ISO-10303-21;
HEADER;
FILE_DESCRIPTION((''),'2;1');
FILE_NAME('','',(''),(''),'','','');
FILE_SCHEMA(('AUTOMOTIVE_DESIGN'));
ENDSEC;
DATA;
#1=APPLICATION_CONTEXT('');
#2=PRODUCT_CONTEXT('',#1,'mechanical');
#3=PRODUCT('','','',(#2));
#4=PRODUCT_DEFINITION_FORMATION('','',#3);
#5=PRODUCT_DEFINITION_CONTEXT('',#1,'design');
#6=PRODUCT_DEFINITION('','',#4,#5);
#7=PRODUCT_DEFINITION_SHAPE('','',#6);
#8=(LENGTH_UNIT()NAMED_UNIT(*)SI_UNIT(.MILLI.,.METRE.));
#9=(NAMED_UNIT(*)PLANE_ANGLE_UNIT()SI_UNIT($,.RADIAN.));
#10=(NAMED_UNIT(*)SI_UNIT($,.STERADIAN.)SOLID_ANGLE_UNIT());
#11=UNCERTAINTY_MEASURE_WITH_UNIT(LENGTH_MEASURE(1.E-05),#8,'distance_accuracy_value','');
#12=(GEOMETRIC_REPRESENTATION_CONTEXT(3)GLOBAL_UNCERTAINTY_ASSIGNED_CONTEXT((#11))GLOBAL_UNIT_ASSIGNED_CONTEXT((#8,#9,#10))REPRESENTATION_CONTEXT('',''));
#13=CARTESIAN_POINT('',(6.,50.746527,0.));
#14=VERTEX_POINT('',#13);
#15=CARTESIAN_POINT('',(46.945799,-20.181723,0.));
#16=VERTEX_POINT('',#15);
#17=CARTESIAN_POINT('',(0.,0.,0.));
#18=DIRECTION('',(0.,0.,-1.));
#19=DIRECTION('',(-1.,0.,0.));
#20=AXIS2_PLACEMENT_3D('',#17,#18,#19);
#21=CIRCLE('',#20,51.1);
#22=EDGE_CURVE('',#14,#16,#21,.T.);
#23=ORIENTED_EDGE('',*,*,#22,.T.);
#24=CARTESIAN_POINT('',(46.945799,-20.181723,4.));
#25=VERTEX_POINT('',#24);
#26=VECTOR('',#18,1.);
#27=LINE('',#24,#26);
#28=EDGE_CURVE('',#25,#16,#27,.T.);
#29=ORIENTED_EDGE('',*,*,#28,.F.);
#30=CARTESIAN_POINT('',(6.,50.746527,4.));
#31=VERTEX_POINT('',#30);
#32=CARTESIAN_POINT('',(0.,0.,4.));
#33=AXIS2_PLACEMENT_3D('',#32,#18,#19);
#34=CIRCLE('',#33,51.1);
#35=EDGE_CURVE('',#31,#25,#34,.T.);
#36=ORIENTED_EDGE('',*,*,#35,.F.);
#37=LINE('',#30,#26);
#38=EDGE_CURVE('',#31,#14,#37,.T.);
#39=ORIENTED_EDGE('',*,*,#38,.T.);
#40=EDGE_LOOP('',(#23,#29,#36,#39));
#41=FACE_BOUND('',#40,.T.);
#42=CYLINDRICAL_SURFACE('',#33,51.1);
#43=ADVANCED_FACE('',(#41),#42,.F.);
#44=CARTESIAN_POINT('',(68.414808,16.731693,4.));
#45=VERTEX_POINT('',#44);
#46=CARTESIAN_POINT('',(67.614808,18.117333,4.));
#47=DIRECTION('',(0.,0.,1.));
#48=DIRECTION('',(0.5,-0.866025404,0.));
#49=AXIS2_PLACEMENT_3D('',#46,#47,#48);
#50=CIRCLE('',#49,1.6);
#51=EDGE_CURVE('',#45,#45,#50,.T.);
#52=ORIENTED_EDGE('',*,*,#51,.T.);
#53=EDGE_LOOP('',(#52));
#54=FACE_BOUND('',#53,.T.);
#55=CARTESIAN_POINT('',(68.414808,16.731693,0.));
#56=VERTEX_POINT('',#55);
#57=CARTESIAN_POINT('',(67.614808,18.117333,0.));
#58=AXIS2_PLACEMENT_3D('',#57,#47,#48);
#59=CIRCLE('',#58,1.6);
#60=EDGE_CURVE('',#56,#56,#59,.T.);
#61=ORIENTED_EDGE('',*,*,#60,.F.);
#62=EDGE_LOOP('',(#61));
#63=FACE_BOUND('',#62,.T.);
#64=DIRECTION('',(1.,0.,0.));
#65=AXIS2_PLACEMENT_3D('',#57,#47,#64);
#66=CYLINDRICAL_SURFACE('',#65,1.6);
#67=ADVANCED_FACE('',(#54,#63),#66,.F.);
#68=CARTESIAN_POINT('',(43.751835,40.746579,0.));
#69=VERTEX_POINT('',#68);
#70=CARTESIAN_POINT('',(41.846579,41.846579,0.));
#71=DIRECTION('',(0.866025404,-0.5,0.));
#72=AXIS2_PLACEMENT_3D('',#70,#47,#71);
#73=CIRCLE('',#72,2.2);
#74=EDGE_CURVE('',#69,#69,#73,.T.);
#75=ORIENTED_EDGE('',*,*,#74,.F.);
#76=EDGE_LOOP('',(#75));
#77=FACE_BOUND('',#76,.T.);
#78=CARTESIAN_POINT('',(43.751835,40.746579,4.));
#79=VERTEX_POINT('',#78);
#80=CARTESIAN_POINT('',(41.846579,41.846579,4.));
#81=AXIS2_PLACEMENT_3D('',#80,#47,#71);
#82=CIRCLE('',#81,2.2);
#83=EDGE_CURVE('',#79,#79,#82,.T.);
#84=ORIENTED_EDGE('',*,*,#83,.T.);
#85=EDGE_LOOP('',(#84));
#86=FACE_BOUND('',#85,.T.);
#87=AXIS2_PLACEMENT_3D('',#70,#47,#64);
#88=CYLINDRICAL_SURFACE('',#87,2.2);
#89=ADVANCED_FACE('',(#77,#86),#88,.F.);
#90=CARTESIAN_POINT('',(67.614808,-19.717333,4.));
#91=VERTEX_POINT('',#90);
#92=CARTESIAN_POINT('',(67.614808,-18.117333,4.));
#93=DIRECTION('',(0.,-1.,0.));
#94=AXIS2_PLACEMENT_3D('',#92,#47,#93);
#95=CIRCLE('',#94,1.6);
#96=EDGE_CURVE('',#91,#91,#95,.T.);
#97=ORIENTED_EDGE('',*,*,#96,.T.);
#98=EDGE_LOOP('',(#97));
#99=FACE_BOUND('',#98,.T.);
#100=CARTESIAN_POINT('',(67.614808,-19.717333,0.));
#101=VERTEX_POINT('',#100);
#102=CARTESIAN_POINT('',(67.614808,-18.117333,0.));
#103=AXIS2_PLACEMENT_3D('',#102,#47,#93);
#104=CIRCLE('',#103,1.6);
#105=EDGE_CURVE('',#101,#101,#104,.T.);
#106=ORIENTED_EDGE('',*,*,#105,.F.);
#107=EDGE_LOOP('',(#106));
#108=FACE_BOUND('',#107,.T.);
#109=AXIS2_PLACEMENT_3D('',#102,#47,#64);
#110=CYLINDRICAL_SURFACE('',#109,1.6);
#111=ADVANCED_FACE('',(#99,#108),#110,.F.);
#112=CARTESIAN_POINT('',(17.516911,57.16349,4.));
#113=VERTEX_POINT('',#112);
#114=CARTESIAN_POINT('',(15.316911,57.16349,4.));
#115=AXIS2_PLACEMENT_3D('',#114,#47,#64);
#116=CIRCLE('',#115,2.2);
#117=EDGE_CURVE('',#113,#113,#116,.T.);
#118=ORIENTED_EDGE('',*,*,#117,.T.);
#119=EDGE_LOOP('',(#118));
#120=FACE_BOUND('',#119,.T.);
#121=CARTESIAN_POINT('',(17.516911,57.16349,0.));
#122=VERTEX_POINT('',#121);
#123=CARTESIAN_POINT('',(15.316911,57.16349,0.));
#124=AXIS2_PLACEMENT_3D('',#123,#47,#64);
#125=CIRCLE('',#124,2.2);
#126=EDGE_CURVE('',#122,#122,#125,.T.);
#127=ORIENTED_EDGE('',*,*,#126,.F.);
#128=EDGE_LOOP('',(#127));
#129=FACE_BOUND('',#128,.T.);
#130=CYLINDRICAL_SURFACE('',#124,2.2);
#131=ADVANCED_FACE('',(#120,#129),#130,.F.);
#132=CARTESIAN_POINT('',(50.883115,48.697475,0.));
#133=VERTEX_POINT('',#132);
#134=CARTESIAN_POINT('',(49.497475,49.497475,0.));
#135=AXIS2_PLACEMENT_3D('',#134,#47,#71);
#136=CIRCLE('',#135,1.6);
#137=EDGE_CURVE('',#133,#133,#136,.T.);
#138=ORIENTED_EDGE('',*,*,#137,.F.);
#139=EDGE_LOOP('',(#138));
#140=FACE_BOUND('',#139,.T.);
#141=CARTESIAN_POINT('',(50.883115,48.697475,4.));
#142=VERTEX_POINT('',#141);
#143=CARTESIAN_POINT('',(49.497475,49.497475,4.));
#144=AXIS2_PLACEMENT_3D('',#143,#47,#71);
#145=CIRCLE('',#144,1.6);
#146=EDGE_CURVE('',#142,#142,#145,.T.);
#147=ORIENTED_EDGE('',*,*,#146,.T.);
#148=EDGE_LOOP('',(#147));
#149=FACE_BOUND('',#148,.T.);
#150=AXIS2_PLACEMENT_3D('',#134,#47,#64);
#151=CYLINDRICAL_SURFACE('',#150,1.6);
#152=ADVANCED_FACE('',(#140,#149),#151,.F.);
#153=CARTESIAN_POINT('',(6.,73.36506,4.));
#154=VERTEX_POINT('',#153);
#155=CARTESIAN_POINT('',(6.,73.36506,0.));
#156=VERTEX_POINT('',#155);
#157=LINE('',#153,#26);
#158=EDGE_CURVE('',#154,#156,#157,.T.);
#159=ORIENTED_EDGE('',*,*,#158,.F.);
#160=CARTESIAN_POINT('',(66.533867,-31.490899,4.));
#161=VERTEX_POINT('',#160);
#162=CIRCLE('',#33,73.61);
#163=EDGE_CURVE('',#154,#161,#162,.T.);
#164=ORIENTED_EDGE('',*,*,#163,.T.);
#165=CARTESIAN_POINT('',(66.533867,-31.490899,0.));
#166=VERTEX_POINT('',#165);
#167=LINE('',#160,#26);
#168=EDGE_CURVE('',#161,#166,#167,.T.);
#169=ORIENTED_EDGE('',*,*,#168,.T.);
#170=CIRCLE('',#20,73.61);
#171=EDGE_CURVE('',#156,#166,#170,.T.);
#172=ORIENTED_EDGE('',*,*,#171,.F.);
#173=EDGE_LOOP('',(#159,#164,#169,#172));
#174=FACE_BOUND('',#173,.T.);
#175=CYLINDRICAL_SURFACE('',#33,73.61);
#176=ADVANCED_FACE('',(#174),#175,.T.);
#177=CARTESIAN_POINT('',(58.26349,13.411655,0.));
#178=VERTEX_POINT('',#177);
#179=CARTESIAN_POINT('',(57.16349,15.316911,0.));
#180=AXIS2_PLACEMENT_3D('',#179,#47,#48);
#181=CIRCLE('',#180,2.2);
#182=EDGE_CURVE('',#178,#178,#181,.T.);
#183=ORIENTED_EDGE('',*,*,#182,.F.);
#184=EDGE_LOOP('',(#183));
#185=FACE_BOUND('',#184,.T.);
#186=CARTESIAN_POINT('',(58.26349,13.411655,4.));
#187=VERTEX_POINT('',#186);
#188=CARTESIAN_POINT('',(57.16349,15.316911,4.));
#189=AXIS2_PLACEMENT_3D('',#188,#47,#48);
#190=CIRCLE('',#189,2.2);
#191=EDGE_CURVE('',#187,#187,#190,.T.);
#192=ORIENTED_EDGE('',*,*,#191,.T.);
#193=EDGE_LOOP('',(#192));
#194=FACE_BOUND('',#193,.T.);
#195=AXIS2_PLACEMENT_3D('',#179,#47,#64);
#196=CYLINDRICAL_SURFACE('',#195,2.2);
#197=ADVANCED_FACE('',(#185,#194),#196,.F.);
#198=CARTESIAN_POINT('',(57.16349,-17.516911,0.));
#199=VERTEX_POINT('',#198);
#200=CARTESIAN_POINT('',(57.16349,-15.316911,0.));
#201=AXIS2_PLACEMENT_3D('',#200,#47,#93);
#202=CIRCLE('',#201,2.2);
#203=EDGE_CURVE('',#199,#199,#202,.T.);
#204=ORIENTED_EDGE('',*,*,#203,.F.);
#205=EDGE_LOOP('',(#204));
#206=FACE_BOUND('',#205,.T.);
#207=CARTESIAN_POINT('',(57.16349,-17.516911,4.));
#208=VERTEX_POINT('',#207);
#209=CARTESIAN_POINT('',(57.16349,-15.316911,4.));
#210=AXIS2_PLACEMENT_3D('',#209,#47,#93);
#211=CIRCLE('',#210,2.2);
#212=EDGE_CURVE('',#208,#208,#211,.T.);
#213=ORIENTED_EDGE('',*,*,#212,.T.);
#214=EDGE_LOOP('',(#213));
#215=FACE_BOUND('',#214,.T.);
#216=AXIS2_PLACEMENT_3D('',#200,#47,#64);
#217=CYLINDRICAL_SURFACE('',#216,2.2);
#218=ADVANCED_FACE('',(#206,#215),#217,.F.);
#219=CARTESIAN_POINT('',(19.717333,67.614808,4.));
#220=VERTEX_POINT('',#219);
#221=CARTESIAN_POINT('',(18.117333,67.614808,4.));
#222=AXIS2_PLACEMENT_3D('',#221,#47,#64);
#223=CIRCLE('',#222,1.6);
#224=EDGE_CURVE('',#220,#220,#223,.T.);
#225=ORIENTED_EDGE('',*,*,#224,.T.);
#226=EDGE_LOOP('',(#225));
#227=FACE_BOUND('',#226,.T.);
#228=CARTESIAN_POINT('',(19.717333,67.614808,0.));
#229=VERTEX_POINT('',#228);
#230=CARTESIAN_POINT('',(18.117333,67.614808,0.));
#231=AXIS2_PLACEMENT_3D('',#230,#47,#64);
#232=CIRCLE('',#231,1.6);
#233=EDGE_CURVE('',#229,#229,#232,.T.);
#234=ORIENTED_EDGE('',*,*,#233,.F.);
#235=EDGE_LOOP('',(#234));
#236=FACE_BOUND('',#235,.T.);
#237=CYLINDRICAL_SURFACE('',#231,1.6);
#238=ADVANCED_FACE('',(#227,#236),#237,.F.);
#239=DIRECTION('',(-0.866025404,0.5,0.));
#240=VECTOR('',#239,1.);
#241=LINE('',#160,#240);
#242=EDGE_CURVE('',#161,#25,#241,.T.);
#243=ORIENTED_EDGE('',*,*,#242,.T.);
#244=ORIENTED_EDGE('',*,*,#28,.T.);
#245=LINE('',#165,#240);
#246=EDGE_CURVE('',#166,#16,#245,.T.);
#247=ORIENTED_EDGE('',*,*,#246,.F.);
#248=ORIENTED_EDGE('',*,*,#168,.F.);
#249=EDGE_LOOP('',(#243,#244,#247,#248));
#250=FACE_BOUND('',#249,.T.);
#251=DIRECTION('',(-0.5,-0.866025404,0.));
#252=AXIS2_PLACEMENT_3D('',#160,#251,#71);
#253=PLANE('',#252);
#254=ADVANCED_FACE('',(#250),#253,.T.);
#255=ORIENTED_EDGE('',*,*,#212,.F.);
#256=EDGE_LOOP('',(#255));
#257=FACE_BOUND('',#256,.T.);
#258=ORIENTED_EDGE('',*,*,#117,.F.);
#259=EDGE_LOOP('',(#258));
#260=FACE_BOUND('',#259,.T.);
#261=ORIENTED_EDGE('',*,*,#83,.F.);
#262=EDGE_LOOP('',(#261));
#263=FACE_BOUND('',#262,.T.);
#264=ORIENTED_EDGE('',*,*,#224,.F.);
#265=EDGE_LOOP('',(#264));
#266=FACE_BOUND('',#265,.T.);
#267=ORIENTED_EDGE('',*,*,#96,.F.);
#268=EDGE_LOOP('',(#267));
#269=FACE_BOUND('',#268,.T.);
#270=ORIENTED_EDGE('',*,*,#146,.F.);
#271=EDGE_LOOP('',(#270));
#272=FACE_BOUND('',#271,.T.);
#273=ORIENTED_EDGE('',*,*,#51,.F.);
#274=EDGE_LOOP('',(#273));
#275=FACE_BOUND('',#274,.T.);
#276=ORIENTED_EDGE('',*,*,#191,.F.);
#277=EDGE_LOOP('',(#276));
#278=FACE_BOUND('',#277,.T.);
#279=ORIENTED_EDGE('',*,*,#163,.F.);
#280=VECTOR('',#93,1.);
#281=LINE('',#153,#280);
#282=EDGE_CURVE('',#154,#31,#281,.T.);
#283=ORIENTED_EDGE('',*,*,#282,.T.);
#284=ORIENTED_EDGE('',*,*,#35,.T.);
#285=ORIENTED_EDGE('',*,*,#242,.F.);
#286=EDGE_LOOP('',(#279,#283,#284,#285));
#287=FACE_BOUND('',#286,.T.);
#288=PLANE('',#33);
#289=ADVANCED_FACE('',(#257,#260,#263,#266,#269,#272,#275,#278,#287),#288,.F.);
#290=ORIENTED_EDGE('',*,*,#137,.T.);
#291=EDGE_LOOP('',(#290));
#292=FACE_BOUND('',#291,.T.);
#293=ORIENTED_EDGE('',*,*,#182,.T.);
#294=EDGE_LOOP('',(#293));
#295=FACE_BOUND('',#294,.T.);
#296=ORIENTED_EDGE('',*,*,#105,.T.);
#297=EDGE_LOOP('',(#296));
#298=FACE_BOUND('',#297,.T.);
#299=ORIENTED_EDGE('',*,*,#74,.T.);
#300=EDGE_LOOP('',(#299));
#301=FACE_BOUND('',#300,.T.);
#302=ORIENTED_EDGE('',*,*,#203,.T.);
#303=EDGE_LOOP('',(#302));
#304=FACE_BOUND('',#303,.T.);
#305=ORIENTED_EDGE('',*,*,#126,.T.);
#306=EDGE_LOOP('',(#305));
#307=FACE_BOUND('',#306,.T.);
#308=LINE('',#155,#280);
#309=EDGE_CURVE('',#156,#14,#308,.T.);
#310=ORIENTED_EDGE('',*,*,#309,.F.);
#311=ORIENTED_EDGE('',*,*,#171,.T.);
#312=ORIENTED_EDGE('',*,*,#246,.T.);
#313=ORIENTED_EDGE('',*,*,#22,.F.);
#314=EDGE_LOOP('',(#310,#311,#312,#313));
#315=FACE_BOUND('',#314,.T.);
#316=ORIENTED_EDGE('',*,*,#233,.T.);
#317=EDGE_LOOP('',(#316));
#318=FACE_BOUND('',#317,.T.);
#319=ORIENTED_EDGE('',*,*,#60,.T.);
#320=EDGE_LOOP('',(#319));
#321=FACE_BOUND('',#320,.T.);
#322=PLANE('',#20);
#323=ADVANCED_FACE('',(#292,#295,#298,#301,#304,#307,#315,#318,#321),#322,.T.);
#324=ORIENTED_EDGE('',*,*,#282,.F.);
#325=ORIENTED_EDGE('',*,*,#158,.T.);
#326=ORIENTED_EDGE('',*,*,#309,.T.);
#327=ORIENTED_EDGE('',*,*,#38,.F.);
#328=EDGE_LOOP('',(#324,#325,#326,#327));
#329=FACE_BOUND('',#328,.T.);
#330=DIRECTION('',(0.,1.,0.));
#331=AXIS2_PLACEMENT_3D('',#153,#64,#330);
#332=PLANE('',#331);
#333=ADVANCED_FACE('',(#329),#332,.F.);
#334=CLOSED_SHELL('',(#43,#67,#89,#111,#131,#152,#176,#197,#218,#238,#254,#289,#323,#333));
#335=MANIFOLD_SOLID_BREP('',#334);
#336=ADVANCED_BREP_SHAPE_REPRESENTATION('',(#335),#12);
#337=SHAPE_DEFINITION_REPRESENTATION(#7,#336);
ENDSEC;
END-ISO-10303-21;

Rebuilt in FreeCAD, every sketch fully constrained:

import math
import FreeCAD as App
import Part
import Sketcher

V = App.Vector
Q = App.Units.Quantity

doc = App.newDocument("Part")
body = doc.addObject("PartDesign::Body", "Body")

sketch1 = body.newObject("Sketcher::SketchObject", "Sketch")
sketch1.AttachmentSupport = (doc.getObject("XY_Plane"), [""])
sketch1.MapMode = "FlatFace"
sketch1.addGeometry([
    Part.LineSegment(V(6, 73.36506, 0), V(6, 50.746527, 0)),
    Part.ArcOfCircle(Part.Circle(V(0, 0, 0), V(0, 0, 1), 51.1), math.radians(-23.262585), math.radians(83.256956)),
    Part.LineSegment(V(46.945799, -20.181723, 0), V(66.533867, -31.490899, 0)),
    Part.ArcOfCircle(Part.Circle(V(0, 0, 0), V(0, 0, 1), 73.61), math.radians(-25.328489), math.radians(85.324596)),
], False)
sketch1.addConstraint([
    Sketcher.Constraint("Coincident", 0, 2, 1, 2),
    Sketcher.Constraint("Coincident", 1, 1, 2, 1),
    Sketcher.Constraint("Coincident", 2, 2, 3, 1),
    Sketcher.Constraint("Coincident", 3, 2, 0, 1),
    Sketcher.Constraint("Vertical", 0),
    Sketcher.Constraint("Coincident", 1, 3, -1, 1),
    Sketcher.Constraint("Coincident", 3, 3, -1, 1),
    Sketcher.Constraint("Radius", 1, 51.1),
    Sketcher.Constraint("Angle", 2, Q("-30 deg")),
    Sketcher.Constraint("Radius", 3, 73.61),
    Sketcher.Constraint("DistanceX", -1, 1, 0, 2, 6.0),
    Sketcher.Constraint("DistanceX", -1, 1, 1, 1, 46.945799),
])
pad1 = body.newObject("PartDesign::Pad", "Pad")
pad1.Profile = sketch1
pad1.Length = 4

sketch2 = body.newObject("Sketcher::SketchObject", "Sketch001")
sketch2.AttachmentSupport = (doc.getObject("XY_Plane"), [""])
sketch2.MapMode = "FlatFace"
sketch2.AttachmentOffset = App.Placement(V(0, 0, 4), App.Rotation())
sketch2.addGeometry([
    Part.Circle(V(18.117333, 67.614808, 0), V(0, 0, 1), 1.6),
    Part.Circle(V(15.316911, 57.16349, 0), V(0, 0, 1), 2.2),
], False)
sketch2.addConstraint([
    Sketcher.Constraint("Diameter", 0, 3.2),
    Sketcher.Constraint("Diameter", 1, 4.4),
    Sketcher.Constraint("DistanceX", -1, 1, 1, 3, 15.316911),
    Sketcher.Constraint("DistanceY", -1, 1, 1, 3, 57.16349),
    Sketcher.Constraint("DistanceX", -1, 1, 0, 3, 18.117333),
    Sketcher.Constraint("DistanceY", -1, 1, 0, 3, 67.614808),
])
pocket1 = body.newObject("PartDesign::Pocket", "Pocket")
pocket1.Profile = sketch2
pocket1.Type = "ThroughAll"
doc.recompute()

polarpattern = body.newObject("PartDesign::PolarPattern", "PolarPattern")
polarpattern.Originals = [pocket1]
polarpattern.Axis = (doc.getObject("Z_Axis"), [""])
polarpattern.Angle = 360
polarpattern.Occurrences = 12
body.Tip = polarpattern

doc.recompute()
